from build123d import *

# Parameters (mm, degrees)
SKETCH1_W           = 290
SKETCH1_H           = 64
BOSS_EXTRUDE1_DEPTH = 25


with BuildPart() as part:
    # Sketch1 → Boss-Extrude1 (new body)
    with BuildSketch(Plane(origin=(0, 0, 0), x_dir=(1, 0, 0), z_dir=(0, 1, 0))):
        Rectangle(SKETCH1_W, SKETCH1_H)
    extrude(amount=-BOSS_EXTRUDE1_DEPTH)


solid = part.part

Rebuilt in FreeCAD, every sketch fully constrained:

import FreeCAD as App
import Part
import Sketcher

V = App.Vector
Q = App.Units.Quantity


def add_polygon(sketch, points):
    """Adds a closed chain of lines whose ends are joined by coincident constraints."""
    first, n = sketch.GeometryCount, len(points)
    for a, b in zip(points, points[1:] + points[:1]):
        sketch.addGeometry(Part.LineSegment(App.Vector(*a, 0), App.Vector(*b, 0)), False)
    for i in range(n):
        sketch.addConstraint(Sketcher.Constraint("Coincident", first + i, 2, first + (i + 1) % n, 1))

doc = App.newDocument("Part")
params = doc.addObject("Spreadsheet::Sheet", "Params")
for row, (alias, value) in enumerate([
    ("sketch1_width", "290 mm"),
    ("sketch1_height", "64 mm"),
    ("pad1_length", "25 mm"),
], start=1):
    params.set(f"A{row}", alias)
    params.set(f"B{row}", "=" + value)
    params.setAlias(f"B{row}", alias)

body = doc.addObject("PartDesign::Body", "Body")

sketch1 = doc.addObject("Sketcher::SketchObject", "Sketch")
body.addObject(sketch1)
sketch1.AttachmentSupport = (doc.XZ_Plane, [""])
sketch1.MapMode = "FlatFace"
add_polygon(sketch1, [(-145, -32), (-145, 32), (145, 32), (145, -32)])
sketch1.addConstraint([
    Sketcher.Constraint("Vertical", 0),
    Sketcher.Constraint("Horizontal", 1),
    Sketcher.Constraint("Vertical", 2),
    Sketcher.Constraint("Horizontal", 3),
    Sketcher.Constraint("Symmetric", 0, 2, 2, 2, -1, 1),
    Sketcher.Constraint("DistanceX", 1, 1, 1, 2, Q("290 mm")),
    Sketcher.Constraint("DistanceY", 0, 1, 0, 2, Q("64 mm")),
])
sketch1.setExpression("Constraints[9]", "Params.sketch1_width")
sketch1.setExpression("Constraints[10]", "Params.sketch1_height")
pad1 = doc.addObject("PartDesign::Pad", "Pad")
body.addObject(pad1)
pad1.Profile = sketch1
pad1.setExpression("Length", "Params.pad1_length")

doc.recompute()
